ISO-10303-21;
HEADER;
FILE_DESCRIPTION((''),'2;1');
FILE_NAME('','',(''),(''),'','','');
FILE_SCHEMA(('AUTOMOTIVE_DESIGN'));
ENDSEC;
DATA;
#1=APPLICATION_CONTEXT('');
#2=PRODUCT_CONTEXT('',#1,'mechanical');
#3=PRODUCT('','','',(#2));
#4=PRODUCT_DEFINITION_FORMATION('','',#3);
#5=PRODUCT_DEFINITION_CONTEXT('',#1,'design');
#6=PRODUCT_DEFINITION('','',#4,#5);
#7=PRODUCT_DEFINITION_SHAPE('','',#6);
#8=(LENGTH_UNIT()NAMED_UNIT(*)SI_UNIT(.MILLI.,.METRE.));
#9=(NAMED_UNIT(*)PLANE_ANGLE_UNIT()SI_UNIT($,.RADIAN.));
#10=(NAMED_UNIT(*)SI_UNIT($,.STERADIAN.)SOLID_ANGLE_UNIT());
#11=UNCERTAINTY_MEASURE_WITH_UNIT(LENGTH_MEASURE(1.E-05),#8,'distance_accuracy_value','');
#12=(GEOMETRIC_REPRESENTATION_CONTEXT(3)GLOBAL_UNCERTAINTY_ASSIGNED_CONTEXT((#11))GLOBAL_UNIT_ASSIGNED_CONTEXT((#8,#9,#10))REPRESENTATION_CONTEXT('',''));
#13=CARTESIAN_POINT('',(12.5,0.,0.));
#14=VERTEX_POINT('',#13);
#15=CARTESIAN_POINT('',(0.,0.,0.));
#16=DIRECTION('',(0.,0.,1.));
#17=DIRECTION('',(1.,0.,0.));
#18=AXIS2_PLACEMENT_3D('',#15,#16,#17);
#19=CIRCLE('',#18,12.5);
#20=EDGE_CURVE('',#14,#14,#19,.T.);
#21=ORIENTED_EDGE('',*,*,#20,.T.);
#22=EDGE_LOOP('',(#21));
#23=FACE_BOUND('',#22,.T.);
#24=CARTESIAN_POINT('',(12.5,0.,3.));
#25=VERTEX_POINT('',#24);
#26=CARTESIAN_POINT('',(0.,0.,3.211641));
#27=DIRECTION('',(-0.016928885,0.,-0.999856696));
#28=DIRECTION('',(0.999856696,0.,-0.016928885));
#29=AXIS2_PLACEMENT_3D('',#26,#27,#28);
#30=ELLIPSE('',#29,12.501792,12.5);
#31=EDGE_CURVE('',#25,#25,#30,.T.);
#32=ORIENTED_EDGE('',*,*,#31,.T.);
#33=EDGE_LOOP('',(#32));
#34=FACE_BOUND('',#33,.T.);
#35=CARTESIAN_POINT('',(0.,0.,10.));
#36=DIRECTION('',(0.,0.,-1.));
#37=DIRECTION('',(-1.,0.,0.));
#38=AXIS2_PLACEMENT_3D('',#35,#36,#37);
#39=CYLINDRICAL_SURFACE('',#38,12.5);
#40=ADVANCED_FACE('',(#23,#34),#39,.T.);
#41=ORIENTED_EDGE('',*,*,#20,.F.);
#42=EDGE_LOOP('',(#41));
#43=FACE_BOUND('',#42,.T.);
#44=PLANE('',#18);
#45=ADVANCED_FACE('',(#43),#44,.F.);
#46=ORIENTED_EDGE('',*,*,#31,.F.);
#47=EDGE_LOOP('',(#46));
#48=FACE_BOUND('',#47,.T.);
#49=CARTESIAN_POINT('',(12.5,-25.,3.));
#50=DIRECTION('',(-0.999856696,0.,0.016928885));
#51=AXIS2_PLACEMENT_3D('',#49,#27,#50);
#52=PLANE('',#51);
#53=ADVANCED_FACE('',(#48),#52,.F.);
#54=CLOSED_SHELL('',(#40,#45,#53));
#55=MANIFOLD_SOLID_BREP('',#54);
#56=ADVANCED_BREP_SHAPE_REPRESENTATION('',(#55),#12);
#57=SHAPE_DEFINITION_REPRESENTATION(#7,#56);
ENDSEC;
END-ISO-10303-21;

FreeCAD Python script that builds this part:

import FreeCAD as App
import Part
import Sketcher
from FreeCAD import Vector
Q = App.Units.Quantity

doc = App.newDocument("Part")
body = doc.addObject("PartDesign::Body", "Body")

# Sketch on XY plane
sketch1 = body.newObject("Sketcher::SketchObject", "Sketch")
sketch1.AttachmentSupport = (doc.getObject("XY_Plane"), [""])
sketch1.MapMode = "FlatFace"
sketch1.addGeometry(Part.Circle(Vector(0, 0, 0), Vector(0, 0, 1), 12), False)
sketch1.addConstraint(Sketcher.Constraint("Coincident", 0, 3, -1, 1))
sketch1.addConstraint(Sketcher.Constraint("Diameter", 0, 25.0))
pad1 = body.newObject("PartDesign::Pad", "Pad")
pad1.Profile = sketch1
pad1.Length = 10

# Sketch on XZ plane
sketch2 = body.newObject("Sketcher::SketchObject", "Sketch001")
sketch2.AttachmentSupport = (doc.getObject("XZ_Plane"), [""])
sketch2.MapMode = "FlatFace"
sketch2.addGeometry(Part.LineSegment(Vector(12, 3, 0), Vector(-17, 3, 0)), False)
sketch2.addGeometry(Part.LineSegment(Vector(-17, 3, 0), Vector(-17, 14, 0)), False)
sketch2.addGeometry(Part.LineSegment(Vector(-17, 14, 0), Vector(18, 14, 0)), False)
sketch2.addGeometry(Part.LineSegment(Vector(18, 14, 0), Vector(18, 3, 0)), False)
sketch2.addGeometry(Part.LineSegment(Vector(18, 3, 0), Vector(12, 3, 0)), False)
sketch2.addConstraint(Sketcher.Constraint("Coincident", 0, 2, 1, 1))
sketch2.addConstraint(Sketcher.Constraint("Coincident", 1, 2, 2, 1))
sketch2.addConstraint(Sketcher.Constraint("Coincident", 2, 2, 3, 1))
sketch2.addConstraint(Sketcher.Constraint("Coincident", 3, 2, 4, 1))
sketch2.addConstraint(Sketcher.Constraint("Coincident", 4, 2, 0, 1))
sketch2.addConstraint(Sketcher.Constraint("Vertical", 1))
sketch2.addConstraint(Sketcher.Constraint("Horizontal", 2))
sketch2.addConstraint(Sketcher.Constraint("Vertical", 3))
sketch2.addConstraint(Sketcher.Constraint("Horizontal", 4))
sketch2.addConstraint(Sketcher.Constraint("DistanceY", -1, 1, 3, 2, 3.0))
sketch2.addConstraint(Sketcher.Constraint("DistanceX", -1, 1, 4, 2, 12.5))
sketch2.addConstraint(Sketcher.Constraint("Angle", 0, Q("179.03 deg")))
sketch2.addConstraint(Sketcher.Constraint("DistanceX", 2, 1, 2, 2, 34.408831))
sketch2.addConstraint(Sketcher.Constraint("DistanceX", 4, 2, 4, 1, 5.270862))
sketch2.addConstraint(Sketcher.Constraint("DistanceY", 1, 1, 1, 2, 10.937833))
pocket1 = body.newObject("PartDesign::Pocket", "Pocket")
pocket1.Profile = sketch2
pocket1.Length = 50
pocket1.Midplane = True

doc.recompute()
